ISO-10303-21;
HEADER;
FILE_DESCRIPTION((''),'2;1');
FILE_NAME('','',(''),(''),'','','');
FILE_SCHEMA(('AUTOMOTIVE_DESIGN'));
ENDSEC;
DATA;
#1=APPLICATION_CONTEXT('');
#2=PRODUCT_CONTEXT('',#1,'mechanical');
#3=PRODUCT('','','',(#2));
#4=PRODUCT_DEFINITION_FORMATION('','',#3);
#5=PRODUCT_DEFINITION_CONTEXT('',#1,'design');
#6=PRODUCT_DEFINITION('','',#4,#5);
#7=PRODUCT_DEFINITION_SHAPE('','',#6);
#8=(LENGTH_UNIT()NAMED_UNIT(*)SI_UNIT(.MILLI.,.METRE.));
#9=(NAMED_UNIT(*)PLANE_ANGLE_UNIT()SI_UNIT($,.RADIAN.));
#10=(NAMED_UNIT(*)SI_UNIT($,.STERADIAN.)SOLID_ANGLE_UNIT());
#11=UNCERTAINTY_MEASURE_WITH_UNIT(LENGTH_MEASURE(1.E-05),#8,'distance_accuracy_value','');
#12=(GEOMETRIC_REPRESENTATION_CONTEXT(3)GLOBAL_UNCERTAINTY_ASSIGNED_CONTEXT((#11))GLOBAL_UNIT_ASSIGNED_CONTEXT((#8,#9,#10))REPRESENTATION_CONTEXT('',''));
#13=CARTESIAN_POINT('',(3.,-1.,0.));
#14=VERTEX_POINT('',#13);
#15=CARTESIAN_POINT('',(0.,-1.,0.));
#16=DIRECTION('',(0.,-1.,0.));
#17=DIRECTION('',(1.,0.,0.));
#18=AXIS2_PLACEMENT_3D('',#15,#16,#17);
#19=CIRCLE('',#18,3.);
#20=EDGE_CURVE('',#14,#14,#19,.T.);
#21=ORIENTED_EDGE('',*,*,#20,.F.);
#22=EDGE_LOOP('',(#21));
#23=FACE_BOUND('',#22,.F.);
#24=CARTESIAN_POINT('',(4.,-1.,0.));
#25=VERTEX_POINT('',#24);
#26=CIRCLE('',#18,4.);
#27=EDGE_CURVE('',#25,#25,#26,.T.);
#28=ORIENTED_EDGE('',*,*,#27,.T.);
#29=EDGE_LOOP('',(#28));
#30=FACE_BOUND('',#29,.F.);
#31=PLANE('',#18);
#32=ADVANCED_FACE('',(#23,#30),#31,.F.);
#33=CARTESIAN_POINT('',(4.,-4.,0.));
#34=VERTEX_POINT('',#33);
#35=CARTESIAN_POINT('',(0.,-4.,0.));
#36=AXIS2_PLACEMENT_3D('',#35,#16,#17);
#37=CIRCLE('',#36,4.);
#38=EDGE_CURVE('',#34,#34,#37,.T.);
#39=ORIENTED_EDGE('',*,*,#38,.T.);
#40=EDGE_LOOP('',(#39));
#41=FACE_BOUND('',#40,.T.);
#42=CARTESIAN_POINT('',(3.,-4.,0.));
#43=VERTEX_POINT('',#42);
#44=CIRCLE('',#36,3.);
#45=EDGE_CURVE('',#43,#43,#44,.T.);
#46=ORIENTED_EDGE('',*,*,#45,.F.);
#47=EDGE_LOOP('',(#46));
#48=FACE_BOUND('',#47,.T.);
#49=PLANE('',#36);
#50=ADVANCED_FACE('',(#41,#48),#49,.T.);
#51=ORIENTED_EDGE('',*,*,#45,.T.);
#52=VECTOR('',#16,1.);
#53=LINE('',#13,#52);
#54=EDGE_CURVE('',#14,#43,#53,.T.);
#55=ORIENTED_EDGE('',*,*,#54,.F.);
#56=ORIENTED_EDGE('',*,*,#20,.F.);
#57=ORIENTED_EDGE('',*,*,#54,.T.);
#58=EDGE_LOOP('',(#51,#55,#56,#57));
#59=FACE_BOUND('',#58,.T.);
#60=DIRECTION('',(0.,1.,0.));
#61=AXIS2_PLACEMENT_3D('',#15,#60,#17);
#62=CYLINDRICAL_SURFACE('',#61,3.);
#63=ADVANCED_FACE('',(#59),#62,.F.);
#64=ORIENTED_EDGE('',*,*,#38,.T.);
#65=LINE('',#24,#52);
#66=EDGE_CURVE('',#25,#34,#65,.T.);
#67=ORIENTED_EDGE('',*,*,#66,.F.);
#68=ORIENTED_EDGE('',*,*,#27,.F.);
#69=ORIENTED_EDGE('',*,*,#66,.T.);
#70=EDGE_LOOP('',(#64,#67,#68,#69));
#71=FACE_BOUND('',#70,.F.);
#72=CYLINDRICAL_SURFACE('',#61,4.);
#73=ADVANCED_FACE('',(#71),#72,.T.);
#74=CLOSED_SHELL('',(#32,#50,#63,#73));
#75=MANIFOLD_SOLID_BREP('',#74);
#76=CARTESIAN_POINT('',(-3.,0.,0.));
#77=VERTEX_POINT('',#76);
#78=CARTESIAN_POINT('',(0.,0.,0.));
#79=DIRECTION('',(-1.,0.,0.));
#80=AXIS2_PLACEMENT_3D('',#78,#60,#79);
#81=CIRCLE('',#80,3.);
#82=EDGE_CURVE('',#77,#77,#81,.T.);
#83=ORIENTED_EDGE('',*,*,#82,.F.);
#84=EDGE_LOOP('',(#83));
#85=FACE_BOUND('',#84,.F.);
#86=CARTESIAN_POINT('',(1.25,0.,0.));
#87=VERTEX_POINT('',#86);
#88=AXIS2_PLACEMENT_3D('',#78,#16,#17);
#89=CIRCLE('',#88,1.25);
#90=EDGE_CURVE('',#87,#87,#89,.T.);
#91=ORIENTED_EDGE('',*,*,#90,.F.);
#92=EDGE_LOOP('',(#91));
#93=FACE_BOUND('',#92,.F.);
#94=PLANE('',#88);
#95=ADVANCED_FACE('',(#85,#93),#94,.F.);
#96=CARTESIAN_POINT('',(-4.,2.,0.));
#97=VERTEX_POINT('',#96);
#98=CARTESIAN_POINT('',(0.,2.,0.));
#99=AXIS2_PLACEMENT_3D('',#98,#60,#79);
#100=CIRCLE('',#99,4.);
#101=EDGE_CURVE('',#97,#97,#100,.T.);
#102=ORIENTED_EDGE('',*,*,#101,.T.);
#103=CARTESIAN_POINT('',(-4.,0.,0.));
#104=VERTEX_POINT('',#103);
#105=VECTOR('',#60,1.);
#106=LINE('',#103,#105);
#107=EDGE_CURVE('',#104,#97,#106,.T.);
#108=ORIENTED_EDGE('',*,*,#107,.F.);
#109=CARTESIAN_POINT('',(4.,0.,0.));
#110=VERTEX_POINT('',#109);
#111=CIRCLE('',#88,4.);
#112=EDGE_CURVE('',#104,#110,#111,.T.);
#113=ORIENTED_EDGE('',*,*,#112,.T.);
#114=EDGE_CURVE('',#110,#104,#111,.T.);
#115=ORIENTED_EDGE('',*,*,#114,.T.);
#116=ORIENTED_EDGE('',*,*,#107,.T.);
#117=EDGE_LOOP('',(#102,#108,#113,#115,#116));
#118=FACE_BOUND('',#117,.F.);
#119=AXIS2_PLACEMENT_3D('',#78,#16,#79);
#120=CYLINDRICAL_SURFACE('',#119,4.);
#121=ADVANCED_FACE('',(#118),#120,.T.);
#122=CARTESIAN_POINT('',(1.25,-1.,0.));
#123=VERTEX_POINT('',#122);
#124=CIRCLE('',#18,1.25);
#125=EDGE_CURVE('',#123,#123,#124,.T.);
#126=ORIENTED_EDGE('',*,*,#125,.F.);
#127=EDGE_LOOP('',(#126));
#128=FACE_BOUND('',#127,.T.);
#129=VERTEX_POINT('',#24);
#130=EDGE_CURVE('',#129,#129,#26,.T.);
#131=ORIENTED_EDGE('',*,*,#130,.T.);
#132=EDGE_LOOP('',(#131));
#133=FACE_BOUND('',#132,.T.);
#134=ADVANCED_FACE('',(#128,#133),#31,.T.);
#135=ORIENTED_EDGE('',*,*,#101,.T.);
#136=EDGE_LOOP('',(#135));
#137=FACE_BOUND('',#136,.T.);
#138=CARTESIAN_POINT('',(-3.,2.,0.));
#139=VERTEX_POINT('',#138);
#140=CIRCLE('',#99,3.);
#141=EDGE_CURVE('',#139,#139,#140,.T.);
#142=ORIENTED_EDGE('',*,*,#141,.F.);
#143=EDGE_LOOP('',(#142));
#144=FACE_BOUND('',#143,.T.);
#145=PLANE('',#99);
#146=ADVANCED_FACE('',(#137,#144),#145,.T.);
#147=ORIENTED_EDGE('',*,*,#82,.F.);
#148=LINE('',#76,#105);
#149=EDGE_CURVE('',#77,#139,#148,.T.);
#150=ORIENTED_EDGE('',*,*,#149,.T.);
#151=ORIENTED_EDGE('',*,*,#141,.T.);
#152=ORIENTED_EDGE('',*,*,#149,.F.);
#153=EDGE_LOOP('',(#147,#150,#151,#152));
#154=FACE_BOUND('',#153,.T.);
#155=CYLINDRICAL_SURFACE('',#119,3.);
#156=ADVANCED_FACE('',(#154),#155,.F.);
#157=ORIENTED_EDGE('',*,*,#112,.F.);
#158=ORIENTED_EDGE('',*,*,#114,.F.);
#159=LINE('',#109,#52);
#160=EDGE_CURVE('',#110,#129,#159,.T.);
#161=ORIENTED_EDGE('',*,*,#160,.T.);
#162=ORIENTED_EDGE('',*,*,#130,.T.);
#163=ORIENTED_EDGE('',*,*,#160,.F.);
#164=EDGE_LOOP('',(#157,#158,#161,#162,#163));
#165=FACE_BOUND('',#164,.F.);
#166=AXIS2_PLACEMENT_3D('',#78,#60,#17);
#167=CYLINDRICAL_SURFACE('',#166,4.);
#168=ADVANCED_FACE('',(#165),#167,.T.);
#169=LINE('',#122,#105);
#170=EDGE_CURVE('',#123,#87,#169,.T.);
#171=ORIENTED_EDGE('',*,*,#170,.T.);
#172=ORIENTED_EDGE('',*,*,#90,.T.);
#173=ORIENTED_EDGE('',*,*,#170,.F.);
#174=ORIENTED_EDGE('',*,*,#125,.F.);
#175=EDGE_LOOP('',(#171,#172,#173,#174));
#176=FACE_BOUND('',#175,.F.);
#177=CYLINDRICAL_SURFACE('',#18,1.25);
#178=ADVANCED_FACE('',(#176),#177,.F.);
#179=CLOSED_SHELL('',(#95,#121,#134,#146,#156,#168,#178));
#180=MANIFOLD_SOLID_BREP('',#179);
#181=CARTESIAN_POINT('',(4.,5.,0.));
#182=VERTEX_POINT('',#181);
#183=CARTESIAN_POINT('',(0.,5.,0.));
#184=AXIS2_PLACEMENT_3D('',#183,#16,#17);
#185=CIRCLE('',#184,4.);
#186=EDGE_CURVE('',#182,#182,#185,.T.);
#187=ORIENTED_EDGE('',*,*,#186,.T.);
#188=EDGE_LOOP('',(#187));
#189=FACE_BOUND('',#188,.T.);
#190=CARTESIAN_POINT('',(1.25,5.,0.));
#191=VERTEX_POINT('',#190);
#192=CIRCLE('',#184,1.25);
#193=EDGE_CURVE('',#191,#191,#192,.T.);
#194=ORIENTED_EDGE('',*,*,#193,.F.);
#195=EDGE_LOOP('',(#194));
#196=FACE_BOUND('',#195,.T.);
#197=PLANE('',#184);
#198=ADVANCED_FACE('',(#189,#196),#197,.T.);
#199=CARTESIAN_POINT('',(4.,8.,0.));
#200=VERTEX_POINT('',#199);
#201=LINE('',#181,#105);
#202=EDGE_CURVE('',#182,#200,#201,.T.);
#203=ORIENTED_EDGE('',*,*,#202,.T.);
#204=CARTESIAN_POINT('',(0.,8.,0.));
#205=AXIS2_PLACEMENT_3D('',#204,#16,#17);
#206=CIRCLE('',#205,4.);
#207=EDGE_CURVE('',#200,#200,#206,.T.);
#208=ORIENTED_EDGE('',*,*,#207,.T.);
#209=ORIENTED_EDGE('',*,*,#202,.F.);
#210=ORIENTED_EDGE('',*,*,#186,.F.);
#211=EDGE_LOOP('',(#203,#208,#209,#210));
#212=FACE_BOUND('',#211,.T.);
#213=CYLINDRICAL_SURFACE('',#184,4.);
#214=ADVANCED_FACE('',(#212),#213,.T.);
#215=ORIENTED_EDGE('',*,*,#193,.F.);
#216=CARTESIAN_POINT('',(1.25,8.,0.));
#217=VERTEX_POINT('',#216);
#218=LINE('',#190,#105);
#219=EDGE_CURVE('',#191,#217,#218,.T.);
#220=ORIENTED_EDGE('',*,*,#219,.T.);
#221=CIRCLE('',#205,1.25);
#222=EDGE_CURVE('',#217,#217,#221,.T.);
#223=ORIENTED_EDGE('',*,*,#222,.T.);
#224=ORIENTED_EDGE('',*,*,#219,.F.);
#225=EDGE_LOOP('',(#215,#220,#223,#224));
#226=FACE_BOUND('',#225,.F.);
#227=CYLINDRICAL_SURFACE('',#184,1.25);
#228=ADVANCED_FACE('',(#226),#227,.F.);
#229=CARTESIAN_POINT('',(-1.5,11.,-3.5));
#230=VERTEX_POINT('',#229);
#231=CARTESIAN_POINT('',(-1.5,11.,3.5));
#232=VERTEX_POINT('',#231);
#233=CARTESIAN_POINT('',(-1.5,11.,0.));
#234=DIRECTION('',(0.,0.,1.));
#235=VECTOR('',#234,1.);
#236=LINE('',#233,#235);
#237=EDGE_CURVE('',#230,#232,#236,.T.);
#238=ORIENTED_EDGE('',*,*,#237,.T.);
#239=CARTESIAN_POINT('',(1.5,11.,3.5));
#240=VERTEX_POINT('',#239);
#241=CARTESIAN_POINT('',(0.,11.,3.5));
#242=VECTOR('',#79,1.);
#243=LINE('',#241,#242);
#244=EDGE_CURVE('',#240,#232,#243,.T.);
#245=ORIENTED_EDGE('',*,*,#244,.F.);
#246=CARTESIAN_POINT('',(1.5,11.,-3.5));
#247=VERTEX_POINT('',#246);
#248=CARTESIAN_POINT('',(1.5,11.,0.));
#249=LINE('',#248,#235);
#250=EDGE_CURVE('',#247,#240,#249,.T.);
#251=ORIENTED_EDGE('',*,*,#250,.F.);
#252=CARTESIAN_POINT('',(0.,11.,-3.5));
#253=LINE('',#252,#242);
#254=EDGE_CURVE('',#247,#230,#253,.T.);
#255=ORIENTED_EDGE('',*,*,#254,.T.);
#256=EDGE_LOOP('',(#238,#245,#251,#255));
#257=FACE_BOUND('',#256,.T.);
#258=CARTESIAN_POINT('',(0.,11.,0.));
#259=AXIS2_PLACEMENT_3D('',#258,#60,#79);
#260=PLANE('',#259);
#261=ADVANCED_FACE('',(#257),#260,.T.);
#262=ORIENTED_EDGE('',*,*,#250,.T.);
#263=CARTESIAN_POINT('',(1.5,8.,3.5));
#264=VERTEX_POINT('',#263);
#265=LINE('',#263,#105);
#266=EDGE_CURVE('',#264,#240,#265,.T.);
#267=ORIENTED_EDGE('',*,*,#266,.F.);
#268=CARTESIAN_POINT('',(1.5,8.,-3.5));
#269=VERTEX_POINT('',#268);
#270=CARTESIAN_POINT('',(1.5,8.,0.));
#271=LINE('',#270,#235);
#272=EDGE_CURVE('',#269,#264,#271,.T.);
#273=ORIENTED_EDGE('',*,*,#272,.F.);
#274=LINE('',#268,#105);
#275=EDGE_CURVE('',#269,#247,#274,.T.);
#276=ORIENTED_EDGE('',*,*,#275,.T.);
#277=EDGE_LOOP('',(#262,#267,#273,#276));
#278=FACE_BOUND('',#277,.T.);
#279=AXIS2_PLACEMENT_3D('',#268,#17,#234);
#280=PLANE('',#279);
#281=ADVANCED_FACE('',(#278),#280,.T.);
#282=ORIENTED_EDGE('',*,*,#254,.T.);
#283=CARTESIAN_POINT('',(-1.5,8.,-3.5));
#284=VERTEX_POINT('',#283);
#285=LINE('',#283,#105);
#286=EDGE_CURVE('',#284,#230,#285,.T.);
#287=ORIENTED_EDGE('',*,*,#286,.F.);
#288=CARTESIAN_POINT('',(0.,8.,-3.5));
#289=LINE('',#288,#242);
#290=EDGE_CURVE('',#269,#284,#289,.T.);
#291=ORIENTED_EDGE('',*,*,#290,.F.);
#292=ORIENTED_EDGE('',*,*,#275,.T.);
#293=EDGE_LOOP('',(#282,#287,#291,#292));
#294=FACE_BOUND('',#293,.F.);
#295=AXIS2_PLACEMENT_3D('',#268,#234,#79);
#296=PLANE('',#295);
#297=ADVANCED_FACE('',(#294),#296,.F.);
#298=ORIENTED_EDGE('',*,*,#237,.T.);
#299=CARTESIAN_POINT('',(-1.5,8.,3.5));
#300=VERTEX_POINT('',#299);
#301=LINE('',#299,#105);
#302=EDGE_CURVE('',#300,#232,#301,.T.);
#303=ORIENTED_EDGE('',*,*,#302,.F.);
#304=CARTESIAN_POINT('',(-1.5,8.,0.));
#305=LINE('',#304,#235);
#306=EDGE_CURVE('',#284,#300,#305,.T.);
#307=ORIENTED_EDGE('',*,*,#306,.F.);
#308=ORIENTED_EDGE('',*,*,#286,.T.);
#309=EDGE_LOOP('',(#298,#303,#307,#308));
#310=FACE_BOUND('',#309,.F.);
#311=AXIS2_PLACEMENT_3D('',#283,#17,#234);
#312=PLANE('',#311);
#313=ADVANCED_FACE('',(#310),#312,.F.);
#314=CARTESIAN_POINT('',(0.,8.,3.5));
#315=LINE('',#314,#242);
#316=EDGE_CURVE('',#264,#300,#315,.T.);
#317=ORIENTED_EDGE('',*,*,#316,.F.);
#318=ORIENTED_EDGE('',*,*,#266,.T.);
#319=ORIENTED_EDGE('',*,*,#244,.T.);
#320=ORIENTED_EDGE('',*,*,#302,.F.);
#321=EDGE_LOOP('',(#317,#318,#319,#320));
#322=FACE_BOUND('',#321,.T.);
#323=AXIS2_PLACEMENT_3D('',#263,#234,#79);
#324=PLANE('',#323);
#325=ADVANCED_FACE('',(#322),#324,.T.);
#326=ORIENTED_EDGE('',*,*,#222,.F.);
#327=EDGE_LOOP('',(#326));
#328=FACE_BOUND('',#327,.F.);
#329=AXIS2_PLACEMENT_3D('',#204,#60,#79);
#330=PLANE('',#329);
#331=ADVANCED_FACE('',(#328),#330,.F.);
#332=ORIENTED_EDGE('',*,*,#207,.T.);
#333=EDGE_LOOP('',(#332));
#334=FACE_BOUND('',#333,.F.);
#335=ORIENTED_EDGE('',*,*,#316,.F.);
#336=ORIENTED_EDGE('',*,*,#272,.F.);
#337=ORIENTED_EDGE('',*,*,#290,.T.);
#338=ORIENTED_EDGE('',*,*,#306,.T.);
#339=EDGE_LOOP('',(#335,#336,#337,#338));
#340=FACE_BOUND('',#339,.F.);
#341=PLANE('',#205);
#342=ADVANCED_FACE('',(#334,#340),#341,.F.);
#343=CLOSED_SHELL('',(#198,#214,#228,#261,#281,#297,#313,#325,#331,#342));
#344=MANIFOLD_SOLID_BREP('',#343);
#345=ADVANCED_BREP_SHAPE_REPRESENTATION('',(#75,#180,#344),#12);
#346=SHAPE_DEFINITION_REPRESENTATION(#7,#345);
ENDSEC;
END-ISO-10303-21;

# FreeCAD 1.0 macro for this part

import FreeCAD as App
import Part
import Sketcher
from FreeCAD import Vector


def add_polygon(sketch, points):
    """Adds a closed chain of lines whose ends are joined by coincident constraints."""
    first, n = sketch.GeometryCount, len(points)
    for a, b in zip(points, points[1:] + points[:1]):
        sketch.addGeometry(Part.LineSegment(App.Vector(*a, 0), App.Vector(*b, 0)), False)
    for i in range(n):
        sketch.addConstraint(Sketcher.Constraint("Coincident", first + i, 2, first + (i + 1) % n, 1))

doc = App.newDocument("Part")
body = doc.addObject("PartDesign::Body", "Body")

# Sketch on XZ plane
sketch1 = body.newObject("Sketcher::SketchObject", "Sketch")
sketch1.AttachmentSupport = (doc.getObject("XZ_Plane"), [""])
sketch1.MapMode = "FlatFace"
sketch1.addGeometry(Part.Circle(Vector(0, 0, 0), Vector(0, 0, 1), 4), False)
sketch1.addConstraint([
    Sketcher.Constraint("Coincident", 0, 3, -1, 1),
    Sketcher.Constraint("Diameter", 0, 8.0),
])
pad1 = body.newObject("PartDesign::Pad", "Pad")
pad1.Profile = sketch1
pad1.Length = 1

# Sketch on XZ plane
sketch2 = body.newObject("Sketcher::SketchObject", "Sketch001")
sketch2.AttachmentSupport = (doc.getObject("XZ_Plane"), [""])
sketch2.MapMode = "FlatFace"
sketch2.addGeometry([
    Part.Circle(Vector(0, 0, 0), Vector(0, 0, 1), 4),
    Part.Circle(Vector(0, 0, 0), Vector(0, 0, 1), 3),
], False)
sketch2.addConstraint([
    Sketcher.Constraint("Coincident", 0, 3, -1, 1),
    Sketcher.Constraint("Coincident", 1, 3, -1, 1),
    Sketcher.Constraint("Diameter", 0, 8.0),
    Sketcher.Constraint("Diameter", 1, 6.0),
])
pad2 = body.newObject("PartDesign::Pad", "Pad001")
pad2.Profile = sketch2
pad2.Length = 2
pad2.Reversed = True

# Sketch on XZ plane
sketch3 = body.newObject("Sketcher::SketchObject", "Sketch002")
sketch3.AttachmentSupport = (doc.getObject("XZ_Plane"), [""])
sketch3.MapMode = "FlatFace"
sketch3.AttachmentOffset = App.Placement(Vector(0, 0, 1), App.Rotation())
sketch3.addGeometry(Part.Circle(Vector(0, 0, 0), Vector(0, 0, 1), 1.2), False)
sketch3.addConstraint([
    Sketcher.Constraint("Coincident", 0, 3, -1, 1),
    Sketcher.Constraint("Diameter", 0, 2.5),
])
pocket1 = body.newObject("PartDesign::Pocket", "Pocket")
pocket1.Profile = sketch3
pocket1.Length = 25
body2 = doc.addObject("PartDesign::Body", "Body001")

# Sketch on XZ plane
sketch4 = body2.newObject("Sketcher::SketchObject", "Sketch003")
sketch4.AttachmentSupport = (doc.getObject("XZ_Plane001"), [""])
sketch4.MapMode = "FlatFace"
sketch4.AttachmentOffset = App.Placement(Vector(0, 0, 1), App.Rotation())
sketch4.addGeometry([
    Part.Circle(Vector(0, 0, 0), Vector(0, 0, 1), 4),
    Part.Circle(Vector(0, 0, 0), Vector(0, 0, 1), 3),
], False)
sketch4.addConstraint([
    Sketcher.Constraint("Coincident", 0, 3, -1, 1),
    Sketcher.Constraint("Coincident", 1, 3, -1, 1),
    Sketcher.Constraint("Diameter", 0, 8.0),
    Sketcher.Constraint("Diameter", 1, 6.0),
])
pad3 = body2.newObject("PartDesign::Pad", "Pad002")
pad3.Profile = sketch4
pad3.Length = 3
body3 = doc.addObject("PartDesign::Body", "Body002")

# Sketch on XZ plane
sketch5 = body3.newObject("Sketcher::SketchObject", "Sketch004")
sketch5.AttachmentSupport = (doc.getObject("XZ_Plane002"), [""])
sketch5.MapMode = "FlatFace"
sketch5.AttachmentOffset = App.Placement(Vector(0, 0, -5), App.Rotation())
sketch5.addGeometry(Part.Circle(Vector(0, 0, 0), Vector(0, 0, 1), 4), False)
sketch5.addConstraint([
    Sketcher.Constraint("Coincident", 0, 3, -1, 1),
    Sketcher.Constraint("Diameter", 0, 8.0),
])
pad4 = body3.newObject("PartDesign::Pad", "Pad003")
pad4.Profile = sketch5
pad4.Length = 3
pad4.Reversed = True

# Sketch on XZ plane
sketch6 = body3.newObject("Sketcher::SketchObject", "Sketch005")
sketch6.AttachmentSupport = (doc.getObject("XZ_Plane002"), [""])
sketch6.MapMode = "FlatFace"
sketch6.AttachmentOffset = App.Placement(Vector(0, 0, -5), App.Rotation())
sketch6.addGeometry(Part.Circle(Vector(0, 0, 0), Vector(0, 0, 1), 1.2), False)
sketch6.addConstraint([
    Sketcher.Constraint("Coincident", 0, 3, -1, 1),
    Sketcher.Constraint("Diameter", 0, 2.5),
])
pocket2 = body3.newObject("PartDesign::Pocket", "Pocket001")
pocket2.Profile = sketch6
pocket2.Length = 3

# Sketch on XZ plane
sketch7 = body3.newObject("Sketcher::SketchObject", "Sketch006")
sketch7.AttachmentSupport = (doc.getObject("XZ_Plane002"), [""])
sketch7.MapMode = "FlatFace"
sketch7.AttachmentOffset = App.Placement(Vector(0, 0, -8), App.Rotation())
add_polygon(sketch7, [(1.5, 3.5), (1.5, -3.5), (-1.5, -3.5), (-1.5, 3.5)])  # lines 0-3
sketch7.addConstraint([
    Sketcher.Constraint("Vertical", 0),
    Sketcher.Constraint("Horizontal", 1),
    Sketcher.Constraint("Vertical", 2),
    Sketcher.Constraint("Horizontal", 3),
    Sketcher.Constraint("Symmetric", 0, 2, 2, 2, -1, 1),
    Sketcher.Constraint("DistanceX", 1, 2, 1, 1, 3.0),
    Sketcher.Constraint("DistanceY", 0, 2, 0, 1, 7.0),
])
pad5 = body3.newObject("PartDesign::Pad", "Pad004")
pad5.Profile = sketch7
pad5.Length = 3
pad5.Reversed = True

doc.recompute()
